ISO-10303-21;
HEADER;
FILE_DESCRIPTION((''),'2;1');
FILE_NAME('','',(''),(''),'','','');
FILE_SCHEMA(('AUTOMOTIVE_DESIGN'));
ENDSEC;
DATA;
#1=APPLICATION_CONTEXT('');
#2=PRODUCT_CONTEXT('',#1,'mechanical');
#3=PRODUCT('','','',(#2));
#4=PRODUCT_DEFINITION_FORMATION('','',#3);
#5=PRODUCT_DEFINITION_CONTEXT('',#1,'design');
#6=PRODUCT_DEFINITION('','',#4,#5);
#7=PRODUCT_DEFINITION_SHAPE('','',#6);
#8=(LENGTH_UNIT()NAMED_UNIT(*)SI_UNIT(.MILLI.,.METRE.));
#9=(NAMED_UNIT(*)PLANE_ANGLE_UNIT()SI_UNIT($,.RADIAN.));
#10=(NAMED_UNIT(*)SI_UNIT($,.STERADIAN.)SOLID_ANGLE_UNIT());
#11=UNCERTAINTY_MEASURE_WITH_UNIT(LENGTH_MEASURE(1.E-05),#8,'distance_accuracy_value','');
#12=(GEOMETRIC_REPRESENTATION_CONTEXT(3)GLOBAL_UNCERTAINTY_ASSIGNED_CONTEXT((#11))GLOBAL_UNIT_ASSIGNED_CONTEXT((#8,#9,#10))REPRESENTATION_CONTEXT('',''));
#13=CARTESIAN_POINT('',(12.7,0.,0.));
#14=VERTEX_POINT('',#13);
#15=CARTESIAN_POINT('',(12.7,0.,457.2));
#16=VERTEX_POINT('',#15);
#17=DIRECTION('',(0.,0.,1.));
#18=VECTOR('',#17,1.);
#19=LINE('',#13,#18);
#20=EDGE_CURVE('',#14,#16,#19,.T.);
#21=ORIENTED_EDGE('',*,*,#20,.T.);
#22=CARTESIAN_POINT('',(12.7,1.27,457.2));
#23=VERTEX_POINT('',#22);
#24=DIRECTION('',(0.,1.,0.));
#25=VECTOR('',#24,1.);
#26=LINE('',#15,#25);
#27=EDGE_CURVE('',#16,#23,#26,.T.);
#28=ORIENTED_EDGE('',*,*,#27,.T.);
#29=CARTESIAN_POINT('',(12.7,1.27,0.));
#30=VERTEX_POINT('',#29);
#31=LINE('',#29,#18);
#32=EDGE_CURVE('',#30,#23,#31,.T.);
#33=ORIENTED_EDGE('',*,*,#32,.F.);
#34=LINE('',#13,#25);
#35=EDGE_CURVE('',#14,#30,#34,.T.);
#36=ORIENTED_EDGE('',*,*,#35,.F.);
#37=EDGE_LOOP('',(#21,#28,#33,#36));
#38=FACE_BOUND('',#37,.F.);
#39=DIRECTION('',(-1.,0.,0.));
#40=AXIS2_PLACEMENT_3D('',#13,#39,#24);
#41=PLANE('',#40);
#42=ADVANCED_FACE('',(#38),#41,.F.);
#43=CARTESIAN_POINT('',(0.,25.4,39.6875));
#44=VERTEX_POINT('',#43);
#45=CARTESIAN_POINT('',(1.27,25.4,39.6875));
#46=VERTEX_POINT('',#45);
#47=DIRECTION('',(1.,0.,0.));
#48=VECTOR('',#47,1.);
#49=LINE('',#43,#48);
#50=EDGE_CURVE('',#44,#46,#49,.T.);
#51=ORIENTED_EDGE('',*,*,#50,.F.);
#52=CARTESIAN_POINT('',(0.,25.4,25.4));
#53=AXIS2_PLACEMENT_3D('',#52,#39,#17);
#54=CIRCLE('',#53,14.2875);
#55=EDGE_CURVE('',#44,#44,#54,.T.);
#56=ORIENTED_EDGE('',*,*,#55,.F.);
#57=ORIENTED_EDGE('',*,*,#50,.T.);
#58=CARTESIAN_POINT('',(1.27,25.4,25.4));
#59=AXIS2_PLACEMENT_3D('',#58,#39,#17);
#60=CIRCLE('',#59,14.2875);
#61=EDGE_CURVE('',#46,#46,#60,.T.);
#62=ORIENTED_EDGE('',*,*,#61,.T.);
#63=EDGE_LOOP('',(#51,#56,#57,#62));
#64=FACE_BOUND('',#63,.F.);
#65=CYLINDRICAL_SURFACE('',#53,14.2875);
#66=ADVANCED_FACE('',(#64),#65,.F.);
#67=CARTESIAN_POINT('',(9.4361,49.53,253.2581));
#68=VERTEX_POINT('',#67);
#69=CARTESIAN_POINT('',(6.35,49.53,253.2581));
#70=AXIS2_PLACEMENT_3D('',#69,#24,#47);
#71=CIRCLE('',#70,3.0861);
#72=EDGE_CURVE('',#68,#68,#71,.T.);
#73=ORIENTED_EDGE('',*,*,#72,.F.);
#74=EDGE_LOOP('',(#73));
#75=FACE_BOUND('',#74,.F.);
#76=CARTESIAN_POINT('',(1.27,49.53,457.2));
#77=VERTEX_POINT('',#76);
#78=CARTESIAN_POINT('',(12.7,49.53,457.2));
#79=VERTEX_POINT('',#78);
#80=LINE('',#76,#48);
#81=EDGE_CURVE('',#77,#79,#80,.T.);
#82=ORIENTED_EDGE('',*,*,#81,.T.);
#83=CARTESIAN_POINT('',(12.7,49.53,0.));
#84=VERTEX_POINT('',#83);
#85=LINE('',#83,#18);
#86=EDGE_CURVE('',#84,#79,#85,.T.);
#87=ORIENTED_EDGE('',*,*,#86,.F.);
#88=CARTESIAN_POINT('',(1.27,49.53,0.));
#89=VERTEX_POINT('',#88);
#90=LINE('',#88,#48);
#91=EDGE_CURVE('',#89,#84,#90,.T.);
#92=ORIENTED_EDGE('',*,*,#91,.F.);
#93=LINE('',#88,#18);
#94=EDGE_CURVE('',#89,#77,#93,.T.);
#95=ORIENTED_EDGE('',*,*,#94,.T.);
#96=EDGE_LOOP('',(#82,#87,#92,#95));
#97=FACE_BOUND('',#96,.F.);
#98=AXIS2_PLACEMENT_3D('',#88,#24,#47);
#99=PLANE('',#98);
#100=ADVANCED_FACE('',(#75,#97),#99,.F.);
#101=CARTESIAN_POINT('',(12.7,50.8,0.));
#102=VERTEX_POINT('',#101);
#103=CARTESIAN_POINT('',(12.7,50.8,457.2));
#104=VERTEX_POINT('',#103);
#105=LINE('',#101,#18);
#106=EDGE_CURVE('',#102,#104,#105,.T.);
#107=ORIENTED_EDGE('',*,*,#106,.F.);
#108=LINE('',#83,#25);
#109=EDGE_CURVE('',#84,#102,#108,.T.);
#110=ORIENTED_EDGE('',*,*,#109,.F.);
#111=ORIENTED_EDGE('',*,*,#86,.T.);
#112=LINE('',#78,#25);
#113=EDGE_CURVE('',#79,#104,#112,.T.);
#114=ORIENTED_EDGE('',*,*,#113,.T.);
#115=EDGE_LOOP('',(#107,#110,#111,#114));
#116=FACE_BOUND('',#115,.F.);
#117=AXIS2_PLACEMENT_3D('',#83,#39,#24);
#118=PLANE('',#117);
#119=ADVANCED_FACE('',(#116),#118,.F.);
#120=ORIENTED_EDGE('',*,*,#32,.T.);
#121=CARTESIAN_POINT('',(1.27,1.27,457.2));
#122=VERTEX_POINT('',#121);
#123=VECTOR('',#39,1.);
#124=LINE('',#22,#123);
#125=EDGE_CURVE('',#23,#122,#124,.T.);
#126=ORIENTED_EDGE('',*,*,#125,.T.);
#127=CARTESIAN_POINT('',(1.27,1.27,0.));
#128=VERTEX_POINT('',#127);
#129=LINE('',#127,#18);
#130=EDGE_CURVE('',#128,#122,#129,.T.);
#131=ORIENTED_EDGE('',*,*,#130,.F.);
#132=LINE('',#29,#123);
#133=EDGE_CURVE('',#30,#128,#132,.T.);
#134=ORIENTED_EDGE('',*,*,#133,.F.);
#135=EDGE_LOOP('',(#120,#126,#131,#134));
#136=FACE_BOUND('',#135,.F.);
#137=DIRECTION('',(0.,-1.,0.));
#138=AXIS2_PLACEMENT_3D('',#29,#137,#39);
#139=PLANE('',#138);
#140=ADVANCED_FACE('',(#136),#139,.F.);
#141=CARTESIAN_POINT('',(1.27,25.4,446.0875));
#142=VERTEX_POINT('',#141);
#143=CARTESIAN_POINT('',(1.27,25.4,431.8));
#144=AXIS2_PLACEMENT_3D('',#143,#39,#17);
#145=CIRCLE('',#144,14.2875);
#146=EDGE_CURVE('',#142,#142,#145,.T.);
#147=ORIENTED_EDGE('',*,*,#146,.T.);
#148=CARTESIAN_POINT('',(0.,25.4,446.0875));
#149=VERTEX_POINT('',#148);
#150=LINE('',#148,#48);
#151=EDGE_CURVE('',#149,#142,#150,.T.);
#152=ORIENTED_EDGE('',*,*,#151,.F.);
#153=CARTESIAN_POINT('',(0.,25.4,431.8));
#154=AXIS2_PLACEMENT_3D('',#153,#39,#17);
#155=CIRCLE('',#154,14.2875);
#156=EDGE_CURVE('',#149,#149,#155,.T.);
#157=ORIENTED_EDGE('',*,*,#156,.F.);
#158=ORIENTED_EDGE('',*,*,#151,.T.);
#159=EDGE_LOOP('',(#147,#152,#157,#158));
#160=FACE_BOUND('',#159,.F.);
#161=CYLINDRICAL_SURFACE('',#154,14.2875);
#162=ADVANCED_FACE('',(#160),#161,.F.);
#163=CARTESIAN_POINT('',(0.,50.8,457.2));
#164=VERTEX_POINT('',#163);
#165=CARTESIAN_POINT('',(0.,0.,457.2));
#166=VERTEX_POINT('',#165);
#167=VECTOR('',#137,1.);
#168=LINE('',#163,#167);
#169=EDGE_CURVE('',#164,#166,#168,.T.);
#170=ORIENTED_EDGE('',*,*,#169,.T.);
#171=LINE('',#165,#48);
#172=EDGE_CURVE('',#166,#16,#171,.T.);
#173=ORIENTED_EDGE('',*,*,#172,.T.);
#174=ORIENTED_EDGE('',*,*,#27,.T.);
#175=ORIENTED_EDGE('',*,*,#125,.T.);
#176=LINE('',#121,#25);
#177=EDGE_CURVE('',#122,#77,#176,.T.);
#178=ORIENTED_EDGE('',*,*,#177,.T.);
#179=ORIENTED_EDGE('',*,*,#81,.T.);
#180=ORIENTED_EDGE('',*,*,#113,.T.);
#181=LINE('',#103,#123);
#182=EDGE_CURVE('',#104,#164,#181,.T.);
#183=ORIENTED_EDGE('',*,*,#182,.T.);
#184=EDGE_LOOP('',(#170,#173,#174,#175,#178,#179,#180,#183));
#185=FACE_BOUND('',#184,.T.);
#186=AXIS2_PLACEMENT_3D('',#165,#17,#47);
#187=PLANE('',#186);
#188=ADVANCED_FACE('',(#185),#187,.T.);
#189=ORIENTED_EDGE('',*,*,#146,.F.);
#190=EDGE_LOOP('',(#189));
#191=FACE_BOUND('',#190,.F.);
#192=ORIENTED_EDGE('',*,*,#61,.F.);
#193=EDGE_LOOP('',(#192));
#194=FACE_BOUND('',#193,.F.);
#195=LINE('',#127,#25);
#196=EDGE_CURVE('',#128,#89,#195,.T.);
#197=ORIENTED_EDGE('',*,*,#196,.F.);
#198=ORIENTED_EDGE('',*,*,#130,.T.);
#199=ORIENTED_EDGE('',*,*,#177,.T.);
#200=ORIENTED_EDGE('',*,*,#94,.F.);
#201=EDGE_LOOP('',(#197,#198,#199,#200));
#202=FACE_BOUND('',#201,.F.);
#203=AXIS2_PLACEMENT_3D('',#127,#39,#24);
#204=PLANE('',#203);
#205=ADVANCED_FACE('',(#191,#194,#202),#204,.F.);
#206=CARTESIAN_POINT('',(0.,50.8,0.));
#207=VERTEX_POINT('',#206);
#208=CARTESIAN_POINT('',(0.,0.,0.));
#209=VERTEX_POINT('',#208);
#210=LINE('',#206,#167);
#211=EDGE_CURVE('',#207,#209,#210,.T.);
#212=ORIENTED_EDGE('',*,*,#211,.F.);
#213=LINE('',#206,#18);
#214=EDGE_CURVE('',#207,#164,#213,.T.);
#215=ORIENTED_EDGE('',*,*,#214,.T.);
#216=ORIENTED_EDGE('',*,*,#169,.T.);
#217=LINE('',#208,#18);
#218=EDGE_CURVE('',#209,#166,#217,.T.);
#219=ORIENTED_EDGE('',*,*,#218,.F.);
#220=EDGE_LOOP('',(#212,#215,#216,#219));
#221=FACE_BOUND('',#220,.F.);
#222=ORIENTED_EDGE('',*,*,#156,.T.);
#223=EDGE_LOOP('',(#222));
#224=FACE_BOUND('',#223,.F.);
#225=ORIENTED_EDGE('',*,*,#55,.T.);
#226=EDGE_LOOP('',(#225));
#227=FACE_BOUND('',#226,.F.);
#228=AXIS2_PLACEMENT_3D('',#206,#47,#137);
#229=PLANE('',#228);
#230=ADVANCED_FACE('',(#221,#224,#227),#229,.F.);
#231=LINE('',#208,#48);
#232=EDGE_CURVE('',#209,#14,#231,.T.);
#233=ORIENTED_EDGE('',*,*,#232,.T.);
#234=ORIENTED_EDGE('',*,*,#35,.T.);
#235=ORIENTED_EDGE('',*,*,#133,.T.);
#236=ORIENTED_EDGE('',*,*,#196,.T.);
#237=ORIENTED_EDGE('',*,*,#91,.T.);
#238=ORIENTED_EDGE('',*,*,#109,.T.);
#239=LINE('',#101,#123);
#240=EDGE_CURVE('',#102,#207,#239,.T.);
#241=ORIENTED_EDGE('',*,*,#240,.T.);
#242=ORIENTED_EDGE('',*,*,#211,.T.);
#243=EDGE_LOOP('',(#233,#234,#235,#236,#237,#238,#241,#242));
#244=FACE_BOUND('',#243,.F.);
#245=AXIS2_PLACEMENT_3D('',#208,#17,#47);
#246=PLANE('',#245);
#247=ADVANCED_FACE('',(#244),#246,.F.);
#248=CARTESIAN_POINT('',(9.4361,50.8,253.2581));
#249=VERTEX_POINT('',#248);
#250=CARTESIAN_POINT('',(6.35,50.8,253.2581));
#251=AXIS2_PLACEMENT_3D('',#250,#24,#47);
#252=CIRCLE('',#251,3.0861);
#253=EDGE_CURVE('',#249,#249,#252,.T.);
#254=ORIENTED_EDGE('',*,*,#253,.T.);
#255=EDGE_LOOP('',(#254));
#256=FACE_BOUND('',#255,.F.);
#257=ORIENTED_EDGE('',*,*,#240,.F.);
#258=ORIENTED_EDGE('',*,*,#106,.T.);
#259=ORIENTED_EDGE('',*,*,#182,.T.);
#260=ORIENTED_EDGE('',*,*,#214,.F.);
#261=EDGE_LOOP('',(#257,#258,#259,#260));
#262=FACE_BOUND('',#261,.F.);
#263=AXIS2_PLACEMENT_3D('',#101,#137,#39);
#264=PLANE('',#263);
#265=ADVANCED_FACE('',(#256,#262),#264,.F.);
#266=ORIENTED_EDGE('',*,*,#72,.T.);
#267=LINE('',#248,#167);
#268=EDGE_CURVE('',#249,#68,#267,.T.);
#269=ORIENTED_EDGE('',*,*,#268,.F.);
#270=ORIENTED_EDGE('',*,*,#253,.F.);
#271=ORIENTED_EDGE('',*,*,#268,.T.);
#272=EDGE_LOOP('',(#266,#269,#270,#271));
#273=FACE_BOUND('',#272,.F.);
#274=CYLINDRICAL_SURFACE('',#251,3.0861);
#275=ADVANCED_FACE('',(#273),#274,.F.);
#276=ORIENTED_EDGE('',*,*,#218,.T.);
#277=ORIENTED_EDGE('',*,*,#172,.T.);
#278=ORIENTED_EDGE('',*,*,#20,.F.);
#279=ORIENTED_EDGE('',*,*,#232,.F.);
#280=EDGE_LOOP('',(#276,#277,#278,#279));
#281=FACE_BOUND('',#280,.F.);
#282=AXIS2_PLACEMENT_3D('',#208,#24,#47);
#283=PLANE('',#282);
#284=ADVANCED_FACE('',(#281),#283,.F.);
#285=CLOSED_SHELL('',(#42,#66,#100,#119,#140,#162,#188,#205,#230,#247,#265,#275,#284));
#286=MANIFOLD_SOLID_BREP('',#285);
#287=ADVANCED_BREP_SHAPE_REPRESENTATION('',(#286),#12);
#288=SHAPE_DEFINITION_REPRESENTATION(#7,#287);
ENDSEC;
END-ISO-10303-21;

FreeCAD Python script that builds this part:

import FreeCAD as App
import Part
import Sketcher
Q = App.Units.Quantity


def add_polygon(sketch, points):
    """Adds a closed chain of lines whose ends are joined by coincident constraints."""
    first, n = sketch.GeometryCount, len(points)
    for a, b in zip(points, points[1:] + points[:1]):
        sketch.addGeometry(Part.LineSegment(App.Vector(*a, 0), App.Vector(*b, 0)), False)
    for i in range(n):
        sketch.addConstraint(Sketcher.Constraint("Coincident", first + i, 2, first + (i + 1) % n, 1))

doc = App.newDocument("Part")
params = doc.addObject("Spreadsheet::Sheet", "Params")
for row, (alias, value) in enumerate([
    ("sketch1_height", "2 in"),
    ("sketch1_width", "0.5 in"),
    ("sketch1_height2", "1.9 in"),
    ("sketch1_width2", "0.45 in"),
    ("pad1_length", "18 in"),
    ("sketch2_diameter", "1.125 in"),
    ("sketch3_diameter", "0.243 in"),
    ("pocket2_length", "0.5 in"),
], start=1):
    params.set(f"A{row}", alias)
    params.set(f"B{row}", "=" + value)
    params.setAlias(f"B{row}", alias)

body = doc.addObject("PartDesign::Body", "Body")

sketch1 = body.newObject("Sketcher::SketchObject", "Sketch")
sketch1.AttachmentSupport = (doc.getObject("XY_Plane"), [""])
sketch1.MapMode = "FlatFace"
add_polygon(sketch1, [(0, 50.8), (0, 0), (12.7, 0), (12.7, 1.3), (1.3, 1.3), (1.3, 49.5), (12.7, 49.5), (12.7, 50.8)])
sketch1.addConstraint(Sketcher.Constraint("Vertical", 0))
sketch1.addConstraint(Sketcher.Constraint("Horizontal", 1))
sketch1.addConstraint(Sketcher.Constraint("Vertical", 2))
sketch1.addConstraint(Sketcher.Constraint("Horizontal", 3))
sketch1.addConstraint(Sketcher.Constraint("Vertical", 4))
sketch1.addConstraint(Sketcher.Constraint("Horizontal", 5))
sketch1.addConstraint(Sketcher.Constraint("Vertical", 6))
sketch1.addConstraint(Sketcher.Constraint("Horizontal", 7))
sketch1.addConstraint(Sketcher.Constraint("Coincident", 0, 2, -1, 1))
sketch1.addConstraint(Sketcher.Constraint("Vertical", 2, 2, 5, 2))
sketch1.addConstraint(Sketcher.Constraint("Equal", 2, 6))
sketch1.addConstraint(Sketcher.Constraint("DistanceY", 0, 2, 0, 1, Q("2 in")))
sketch1.addConstraint(Sketcher.Constraint("DistanceX", 1, 1, 1, 2, Q("0.5 in")))
sketch1.addConstraint(Sketcher.Constraint("DistanceY", 4, 1, 4, 2, Q("1.9 in")))
sketch1.addConstraint(Sketcher.Constraint("DistanceX", 3, 2, 3, 1, Q("0.45 in")))
sketch1.setExpression("Constraints[19]", "Params.sketch1_height")
sketch1.setExpression("Constraints[20]", "Params.sketch1_width")
sketch1.setExpression("Constraints[21]", "Params.sketch1_height2")
sketch1.setExpression("Constraints[22]", "Params.sketch1_width2")
pad1 = body.newObject("PartDesign::Pad", "Pad")
pad1.Profile = sketch1
pad1.setExpression("Length", "Params.pad1_length")

sketch2 = body.newObject("Sketcher::SketchObject", "Sketch001")
sketch2.AttachmentSupport = (doc.getObject("YZ_Plane"), [""])
sketch2.MapMode = "FlatFace"
sketch2.addGeometry(Part.Circle(App.Vector(25, 25, 0), App.Vector(0, 0, 1), 14), False)
sketch2.addGeometry(Part.Circle(App.Vector(25, 432, 0), App.Vector(0, 0, 1), 14), False)
sketch2.addConstraint(Sketcher.Constraint("Equal", 0, 1))
sketch2.addConstraint(Sketcher.Constraint("Vertical", 0, 3, 1, 3))
sketch2.addConstraint(Sketcher.Constraint("Diameter", 0, Q("1.125 in")))
sketch2.addConstraint(Sketcher.Constraint("DistanceX", -1, 1, 0, 3, Q("1 in")))
sketch2.addConstraint(Sketcher.Constraint("DistanceY", -1, 1, 0, 3, Q("1 in")))
sketch2.addConstraint(Sketcher.Constraint("DistanceY", -1, 1, 1, 3, Q("17 in")))
sketch2.setExpression("Constraints[2]", "Params.sketch2_diameter")
pocket1 = body.newObject("PartDesign::Pocket", "Pocket")
pocket1.Profile = sketch2
pocket1.Type = "ThroughAll"
pocket1.Reversed = True

sketch3 = body.newObject("Sketcher::SketchObject", "Sketch002")
sketch3.AttachmentSupport = (doc.getObject("XZ_Plane"), [""])
sketch3.MapMode = "FlatFace"
sketch3.AttachmentOffset = App.Placement(App.Vector(0, 0, -2 * 25.4), App.Rotation())
sketch3.addGeometry(Part.Circle(App.Vector(6.3, 253.3, 0), App.Vector(0, 0, 1), 3.1), False)
sketch3.addConstraint(Sketcher.Constraint("Diameter", 0, Q("0.243 in")))
sketch3.addConstraint(Sketcher.Constraint("DistanceX", -1, 1, 0, 3, Q("0.25 in")))
sketch3.addConstraint(Sketcher.Constraint("DistanceY", -1, 1, 0, 3, Q("9.9708 in")))
sketch3.setExpression("Constraints[0]", "Params.sketch3_diameter")
pocket2 = body.newObject("PartDesign::Pocket", "Pocket001")
pocket2.Profile = sketch3
pocket2.setExpression("Length", "Params.pocket2_length")
pocket2.Reversed = True

doc.recompute()
